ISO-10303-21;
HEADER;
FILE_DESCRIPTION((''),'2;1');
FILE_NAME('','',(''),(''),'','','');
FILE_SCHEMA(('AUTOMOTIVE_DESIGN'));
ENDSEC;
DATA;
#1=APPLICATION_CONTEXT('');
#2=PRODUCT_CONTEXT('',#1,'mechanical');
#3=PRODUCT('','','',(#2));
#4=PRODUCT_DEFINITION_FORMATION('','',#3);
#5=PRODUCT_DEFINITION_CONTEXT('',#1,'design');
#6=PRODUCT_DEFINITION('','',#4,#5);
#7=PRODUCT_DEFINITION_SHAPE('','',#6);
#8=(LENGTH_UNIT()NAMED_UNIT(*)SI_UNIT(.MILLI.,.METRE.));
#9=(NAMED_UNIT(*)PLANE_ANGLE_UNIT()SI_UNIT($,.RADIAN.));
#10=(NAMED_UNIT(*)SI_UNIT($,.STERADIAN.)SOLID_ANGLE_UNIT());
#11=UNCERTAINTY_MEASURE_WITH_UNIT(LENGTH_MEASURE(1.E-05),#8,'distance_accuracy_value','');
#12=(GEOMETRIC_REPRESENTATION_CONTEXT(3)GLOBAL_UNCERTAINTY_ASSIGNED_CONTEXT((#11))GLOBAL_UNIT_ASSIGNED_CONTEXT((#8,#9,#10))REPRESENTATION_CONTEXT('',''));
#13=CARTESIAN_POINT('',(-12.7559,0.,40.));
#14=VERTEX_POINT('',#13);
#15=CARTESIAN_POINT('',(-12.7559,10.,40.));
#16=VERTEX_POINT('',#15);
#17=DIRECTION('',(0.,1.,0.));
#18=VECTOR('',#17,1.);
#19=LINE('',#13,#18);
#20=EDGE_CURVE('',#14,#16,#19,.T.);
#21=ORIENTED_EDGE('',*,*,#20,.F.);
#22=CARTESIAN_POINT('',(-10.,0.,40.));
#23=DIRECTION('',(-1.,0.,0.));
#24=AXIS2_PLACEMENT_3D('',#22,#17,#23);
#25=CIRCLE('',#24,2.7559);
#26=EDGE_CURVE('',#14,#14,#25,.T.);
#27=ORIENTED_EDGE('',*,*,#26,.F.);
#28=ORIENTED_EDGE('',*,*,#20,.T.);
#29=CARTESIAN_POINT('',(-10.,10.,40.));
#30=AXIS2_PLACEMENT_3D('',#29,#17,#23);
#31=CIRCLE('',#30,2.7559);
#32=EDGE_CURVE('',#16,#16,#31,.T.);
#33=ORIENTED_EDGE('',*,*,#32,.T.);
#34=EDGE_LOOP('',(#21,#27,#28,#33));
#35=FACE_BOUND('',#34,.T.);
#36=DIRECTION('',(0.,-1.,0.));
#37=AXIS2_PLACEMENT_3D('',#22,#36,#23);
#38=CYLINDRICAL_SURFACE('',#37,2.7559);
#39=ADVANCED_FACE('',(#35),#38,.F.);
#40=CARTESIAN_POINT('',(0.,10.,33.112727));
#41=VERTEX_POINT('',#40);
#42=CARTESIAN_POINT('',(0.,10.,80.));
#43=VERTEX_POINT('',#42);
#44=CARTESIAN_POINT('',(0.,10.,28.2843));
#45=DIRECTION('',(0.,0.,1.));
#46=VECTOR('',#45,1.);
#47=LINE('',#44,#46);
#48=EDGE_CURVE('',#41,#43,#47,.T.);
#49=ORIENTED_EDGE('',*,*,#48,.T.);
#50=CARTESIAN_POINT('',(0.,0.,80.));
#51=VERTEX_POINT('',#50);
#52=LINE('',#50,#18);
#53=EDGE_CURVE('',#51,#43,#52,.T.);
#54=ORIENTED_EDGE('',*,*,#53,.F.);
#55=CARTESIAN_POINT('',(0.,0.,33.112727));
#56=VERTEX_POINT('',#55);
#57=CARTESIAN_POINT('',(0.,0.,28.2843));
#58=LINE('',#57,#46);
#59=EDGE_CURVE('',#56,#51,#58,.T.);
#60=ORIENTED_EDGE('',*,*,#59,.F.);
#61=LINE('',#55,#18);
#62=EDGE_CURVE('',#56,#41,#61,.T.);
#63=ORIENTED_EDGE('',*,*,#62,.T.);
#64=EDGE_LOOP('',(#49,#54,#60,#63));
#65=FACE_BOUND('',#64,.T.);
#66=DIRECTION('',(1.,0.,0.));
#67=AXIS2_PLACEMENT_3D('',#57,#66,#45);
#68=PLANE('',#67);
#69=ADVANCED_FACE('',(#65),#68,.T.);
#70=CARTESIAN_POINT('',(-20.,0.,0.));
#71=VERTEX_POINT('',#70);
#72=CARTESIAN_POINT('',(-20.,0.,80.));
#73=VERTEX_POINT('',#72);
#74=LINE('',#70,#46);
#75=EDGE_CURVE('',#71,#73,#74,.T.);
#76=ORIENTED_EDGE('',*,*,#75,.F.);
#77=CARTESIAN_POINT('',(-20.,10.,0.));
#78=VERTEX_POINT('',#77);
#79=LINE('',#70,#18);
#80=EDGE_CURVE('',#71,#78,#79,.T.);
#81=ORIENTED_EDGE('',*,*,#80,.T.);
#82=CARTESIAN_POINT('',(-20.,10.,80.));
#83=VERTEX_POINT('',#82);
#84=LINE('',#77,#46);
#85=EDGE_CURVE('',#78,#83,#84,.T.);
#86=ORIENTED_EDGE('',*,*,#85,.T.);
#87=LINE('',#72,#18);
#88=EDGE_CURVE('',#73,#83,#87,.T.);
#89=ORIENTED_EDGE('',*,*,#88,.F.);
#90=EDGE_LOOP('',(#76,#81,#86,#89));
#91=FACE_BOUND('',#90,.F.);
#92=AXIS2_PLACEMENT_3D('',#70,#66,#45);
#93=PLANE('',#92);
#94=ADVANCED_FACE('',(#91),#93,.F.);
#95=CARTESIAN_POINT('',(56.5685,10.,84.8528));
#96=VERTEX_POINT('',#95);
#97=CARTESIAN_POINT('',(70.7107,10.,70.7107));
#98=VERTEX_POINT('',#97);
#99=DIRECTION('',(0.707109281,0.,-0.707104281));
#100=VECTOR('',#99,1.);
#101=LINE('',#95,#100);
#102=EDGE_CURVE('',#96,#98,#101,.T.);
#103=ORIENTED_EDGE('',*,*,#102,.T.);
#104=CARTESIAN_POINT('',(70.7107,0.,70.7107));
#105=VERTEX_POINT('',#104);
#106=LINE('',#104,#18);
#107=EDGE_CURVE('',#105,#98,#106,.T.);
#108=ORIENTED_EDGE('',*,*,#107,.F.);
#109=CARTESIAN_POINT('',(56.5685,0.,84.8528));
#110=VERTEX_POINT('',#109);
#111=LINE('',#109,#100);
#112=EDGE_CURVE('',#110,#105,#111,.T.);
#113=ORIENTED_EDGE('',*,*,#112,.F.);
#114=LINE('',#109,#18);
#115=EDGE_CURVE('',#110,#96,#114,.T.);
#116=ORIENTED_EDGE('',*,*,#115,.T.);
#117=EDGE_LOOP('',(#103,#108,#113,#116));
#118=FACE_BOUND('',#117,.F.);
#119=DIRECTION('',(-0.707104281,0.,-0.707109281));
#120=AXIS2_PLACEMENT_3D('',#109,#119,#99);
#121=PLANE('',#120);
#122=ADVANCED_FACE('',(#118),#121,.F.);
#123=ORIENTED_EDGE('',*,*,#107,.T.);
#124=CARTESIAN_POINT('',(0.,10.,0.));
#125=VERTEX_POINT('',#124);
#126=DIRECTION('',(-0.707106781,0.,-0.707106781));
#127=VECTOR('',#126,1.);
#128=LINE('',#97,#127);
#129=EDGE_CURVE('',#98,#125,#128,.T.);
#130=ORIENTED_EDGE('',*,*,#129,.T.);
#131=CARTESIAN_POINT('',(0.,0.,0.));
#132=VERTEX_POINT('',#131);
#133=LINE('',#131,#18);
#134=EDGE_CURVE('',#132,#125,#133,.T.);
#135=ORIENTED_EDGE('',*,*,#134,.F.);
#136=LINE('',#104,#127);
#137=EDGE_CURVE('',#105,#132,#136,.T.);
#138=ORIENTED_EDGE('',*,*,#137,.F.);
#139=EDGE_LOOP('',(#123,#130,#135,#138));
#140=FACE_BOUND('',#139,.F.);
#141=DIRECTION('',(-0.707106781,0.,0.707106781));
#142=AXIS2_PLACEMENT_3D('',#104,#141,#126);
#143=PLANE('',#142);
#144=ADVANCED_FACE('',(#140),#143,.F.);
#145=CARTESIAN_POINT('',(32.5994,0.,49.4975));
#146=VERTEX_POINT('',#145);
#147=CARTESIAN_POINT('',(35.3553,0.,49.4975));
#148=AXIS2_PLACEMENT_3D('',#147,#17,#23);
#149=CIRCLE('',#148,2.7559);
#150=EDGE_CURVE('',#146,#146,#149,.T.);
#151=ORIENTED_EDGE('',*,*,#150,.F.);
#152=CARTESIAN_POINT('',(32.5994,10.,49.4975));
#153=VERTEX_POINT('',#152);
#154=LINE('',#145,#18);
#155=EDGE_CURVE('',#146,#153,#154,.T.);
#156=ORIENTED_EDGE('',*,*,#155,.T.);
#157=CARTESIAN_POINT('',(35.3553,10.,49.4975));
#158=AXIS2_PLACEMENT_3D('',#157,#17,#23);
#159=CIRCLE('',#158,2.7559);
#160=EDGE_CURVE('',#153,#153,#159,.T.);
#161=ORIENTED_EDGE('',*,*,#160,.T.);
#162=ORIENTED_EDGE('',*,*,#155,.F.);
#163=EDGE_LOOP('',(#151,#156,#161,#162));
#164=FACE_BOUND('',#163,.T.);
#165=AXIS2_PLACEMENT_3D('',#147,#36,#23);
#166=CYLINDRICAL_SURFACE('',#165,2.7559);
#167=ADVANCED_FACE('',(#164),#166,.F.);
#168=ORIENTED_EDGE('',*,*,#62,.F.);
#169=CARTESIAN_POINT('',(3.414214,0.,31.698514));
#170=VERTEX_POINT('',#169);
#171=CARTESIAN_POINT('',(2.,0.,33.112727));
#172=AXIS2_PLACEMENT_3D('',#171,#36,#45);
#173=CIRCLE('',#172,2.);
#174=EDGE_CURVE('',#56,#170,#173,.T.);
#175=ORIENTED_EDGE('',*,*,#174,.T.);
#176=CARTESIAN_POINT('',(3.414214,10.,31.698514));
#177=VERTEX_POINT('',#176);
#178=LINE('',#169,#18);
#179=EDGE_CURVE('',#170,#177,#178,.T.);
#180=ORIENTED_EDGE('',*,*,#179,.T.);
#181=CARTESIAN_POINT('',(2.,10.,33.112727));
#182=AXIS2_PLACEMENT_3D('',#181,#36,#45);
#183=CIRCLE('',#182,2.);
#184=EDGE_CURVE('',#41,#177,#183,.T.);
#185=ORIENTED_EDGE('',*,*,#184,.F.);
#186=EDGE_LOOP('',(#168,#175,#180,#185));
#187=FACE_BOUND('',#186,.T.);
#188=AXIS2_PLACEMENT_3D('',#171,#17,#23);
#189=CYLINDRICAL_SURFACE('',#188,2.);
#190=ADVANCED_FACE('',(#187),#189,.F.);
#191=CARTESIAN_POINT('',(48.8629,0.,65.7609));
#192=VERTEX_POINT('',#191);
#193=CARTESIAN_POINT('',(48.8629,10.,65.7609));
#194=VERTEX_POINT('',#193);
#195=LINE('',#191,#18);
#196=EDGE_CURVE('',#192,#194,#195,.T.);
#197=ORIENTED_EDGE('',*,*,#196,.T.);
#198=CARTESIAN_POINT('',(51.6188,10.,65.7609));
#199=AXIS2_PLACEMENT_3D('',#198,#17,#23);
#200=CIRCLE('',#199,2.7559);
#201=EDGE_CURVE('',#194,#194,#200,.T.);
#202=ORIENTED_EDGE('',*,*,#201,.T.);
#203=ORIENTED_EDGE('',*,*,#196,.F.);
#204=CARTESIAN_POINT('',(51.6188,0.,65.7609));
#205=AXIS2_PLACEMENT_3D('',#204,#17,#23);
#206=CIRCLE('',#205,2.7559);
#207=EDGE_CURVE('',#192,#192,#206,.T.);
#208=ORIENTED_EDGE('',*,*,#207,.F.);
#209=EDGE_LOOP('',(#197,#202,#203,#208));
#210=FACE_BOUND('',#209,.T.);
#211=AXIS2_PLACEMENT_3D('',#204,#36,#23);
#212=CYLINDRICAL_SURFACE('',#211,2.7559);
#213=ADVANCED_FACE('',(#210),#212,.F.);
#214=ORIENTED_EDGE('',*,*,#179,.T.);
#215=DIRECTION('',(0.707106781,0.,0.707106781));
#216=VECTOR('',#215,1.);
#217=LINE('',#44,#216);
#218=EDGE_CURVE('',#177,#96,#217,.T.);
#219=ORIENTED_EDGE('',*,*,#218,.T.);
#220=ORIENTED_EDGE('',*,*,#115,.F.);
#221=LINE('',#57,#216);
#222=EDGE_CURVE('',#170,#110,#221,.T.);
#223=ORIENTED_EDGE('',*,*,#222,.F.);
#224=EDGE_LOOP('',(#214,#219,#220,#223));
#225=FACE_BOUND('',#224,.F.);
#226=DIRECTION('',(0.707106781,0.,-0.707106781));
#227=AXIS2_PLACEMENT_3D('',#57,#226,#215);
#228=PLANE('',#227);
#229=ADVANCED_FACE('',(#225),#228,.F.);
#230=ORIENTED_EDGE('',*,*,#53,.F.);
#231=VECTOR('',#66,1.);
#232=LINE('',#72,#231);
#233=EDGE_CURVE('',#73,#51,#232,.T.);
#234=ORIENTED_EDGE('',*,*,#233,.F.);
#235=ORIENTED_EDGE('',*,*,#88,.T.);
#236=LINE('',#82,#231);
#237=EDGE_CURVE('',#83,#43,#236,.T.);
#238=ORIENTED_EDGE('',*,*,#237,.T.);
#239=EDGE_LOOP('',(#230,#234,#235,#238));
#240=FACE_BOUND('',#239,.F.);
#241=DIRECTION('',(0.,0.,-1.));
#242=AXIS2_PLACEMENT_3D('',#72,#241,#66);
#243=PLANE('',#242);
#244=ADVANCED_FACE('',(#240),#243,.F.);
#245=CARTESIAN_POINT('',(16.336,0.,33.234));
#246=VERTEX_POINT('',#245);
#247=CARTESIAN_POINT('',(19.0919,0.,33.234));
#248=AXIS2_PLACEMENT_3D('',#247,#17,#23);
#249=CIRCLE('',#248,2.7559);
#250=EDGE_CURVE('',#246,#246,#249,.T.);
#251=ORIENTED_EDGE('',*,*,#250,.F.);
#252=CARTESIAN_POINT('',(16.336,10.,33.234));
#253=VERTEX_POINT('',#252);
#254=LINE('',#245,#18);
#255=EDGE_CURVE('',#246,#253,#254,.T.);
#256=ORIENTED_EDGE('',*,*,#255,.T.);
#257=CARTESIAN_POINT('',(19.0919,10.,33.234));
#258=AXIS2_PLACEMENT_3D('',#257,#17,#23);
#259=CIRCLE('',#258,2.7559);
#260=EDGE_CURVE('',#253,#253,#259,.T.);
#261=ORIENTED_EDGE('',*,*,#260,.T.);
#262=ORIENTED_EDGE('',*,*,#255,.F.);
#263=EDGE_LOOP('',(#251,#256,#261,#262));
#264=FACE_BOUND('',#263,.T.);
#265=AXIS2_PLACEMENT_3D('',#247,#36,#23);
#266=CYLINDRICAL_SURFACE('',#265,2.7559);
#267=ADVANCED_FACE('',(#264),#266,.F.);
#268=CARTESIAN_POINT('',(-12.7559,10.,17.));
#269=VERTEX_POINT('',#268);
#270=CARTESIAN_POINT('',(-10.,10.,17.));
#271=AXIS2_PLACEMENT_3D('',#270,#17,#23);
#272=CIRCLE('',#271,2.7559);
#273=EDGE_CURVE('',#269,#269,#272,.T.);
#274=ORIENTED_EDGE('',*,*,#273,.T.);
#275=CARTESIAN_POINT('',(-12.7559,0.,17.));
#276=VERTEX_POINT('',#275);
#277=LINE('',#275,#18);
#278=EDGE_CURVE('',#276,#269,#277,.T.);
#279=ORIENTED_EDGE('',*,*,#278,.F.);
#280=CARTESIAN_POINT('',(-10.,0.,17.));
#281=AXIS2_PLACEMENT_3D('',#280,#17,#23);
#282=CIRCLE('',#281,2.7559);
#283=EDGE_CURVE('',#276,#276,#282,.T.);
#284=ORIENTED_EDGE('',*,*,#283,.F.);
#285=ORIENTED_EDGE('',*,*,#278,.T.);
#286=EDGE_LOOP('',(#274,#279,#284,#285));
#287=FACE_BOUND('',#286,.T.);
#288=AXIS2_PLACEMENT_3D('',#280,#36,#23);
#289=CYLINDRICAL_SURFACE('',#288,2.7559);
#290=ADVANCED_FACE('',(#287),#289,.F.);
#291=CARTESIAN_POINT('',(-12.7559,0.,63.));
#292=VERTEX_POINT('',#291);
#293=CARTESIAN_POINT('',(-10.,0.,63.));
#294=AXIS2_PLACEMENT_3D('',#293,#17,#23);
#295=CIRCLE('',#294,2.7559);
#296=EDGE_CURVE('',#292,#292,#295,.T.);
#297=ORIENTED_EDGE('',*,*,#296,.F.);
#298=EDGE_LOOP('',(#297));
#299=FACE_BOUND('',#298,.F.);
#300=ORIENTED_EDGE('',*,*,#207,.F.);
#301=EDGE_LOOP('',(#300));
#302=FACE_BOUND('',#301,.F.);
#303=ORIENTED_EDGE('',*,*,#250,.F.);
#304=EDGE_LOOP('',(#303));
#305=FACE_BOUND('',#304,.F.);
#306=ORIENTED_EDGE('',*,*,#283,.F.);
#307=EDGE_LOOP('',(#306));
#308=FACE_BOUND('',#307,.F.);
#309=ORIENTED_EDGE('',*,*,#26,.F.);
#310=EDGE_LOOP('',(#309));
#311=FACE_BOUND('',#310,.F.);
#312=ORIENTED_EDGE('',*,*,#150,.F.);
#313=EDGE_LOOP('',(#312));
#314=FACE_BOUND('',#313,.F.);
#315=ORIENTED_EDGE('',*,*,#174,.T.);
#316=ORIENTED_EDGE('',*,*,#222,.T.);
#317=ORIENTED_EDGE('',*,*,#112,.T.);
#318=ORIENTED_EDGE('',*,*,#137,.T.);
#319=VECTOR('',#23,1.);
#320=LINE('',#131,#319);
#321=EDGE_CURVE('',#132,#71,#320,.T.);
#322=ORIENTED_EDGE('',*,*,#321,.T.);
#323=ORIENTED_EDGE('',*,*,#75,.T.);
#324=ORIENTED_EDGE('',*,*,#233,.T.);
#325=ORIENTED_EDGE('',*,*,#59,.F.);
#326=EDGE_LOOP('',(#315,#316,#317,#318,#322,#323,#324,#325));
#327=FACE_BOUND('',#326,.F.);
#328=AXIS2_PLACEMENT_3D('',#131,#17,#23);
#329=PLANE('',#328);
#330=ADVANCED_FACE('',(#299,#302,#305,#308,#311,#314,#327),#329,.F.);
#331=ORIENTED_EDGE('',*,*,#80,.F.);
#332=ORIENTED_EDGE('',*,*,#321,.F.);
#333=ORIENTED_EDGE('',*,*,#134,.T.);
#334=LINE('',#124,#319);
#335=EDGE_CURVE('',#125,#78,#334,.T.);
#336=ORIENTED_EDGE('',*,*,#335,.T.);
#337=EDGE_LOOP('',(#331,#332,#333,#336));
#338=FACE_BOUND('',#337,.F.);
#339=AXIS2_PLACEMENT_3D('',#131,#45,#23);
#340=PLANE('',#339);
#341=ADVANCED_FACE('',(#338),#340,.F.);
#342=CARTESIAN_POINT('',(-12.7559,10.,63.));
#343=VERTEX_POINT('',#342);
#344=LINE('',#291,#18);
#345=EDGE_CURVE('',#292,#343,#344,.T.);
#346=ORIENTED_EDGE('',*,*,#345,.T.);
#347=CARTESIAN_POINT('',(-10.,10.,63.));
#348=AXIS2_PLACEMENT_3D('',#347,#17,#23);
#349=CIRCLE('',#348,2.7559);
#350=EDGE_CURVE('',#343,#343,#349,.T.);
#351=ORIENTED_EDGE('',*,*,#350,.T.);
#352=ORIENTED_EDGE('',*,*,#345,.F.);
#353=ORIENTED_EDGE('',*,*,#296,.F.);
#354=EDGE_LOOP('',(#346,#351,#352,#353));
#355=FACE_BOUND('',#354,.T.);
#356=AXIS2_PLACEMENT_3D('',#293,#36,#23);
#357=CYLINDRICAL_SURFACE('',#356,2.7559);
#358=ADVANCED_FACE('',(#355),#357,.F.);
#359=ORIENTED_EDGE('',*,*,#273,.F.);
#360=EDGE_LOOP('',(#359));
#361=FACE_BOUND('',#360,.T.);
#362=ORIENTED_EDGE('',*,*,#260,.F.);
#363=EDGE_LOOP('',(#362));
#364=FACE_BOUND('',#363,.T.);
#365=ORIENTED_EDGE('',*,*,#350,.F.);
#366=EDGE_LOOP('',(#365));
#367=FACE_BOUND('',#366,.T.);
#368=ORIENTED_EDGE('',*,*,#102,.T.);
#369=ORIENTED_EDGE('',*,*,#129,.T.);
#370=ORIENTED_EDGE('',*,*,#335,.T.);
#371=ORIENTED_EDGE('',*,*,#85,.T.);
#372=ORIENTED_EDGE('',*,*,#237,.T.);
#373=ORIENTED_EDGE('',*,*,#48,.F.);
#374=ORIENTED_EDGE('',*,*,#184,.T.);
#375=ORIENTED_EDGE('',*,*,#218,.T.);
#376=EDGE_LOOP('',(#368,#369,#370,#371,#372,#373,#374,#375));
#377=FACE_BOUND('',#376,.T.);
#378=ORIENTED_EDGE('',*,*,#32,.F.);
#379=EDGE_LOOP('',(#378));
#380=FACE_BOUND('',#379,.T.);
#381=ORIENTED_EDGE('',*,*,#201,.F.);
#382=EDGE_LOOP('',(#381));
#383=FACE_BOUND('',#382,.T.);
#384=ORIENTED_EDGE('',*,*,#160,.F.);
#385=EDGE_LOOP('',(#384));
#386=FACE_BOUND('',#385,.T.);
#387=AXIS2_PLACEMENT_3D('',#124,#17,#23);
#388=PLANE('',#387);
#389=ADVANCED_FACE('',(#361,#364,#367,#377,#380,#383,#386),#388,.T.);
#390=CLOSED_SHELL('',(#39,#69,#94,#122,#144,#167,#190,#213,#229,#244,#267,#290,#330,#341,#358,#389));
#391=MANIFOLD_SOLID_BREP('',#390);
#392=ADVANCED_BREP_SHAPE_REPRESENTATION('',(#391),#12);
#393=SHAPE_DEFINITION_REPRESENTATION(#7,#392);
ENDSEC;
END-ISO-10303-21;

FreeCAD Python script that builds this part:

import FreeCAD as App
import Part
import Sketcher

V = App.Vector
Q = App.Units.Quantity


def edges_at(feature, points):
    """Names of the edges that pass closest to the given points."""
    edges = feature.Shape.Edges
    near = lambda p: min(range(len(edges)), key=lambda i: edges[i].distToShape(Part.Vertex(*p))[0])
    return sorted({f"Edge{near(p) + 1}" for p in points})


def add_polygon(sketch, points):
    """Adds a closed chain of lines whose ends are joined by coincident constraints."""
    first, n = sketch.GeometryCount, len(points)
    for a, b in zip(points, points[1:] + points[:1]):
        sketch.addGeometry(Part.LineSegment(App.Vector(*a, 0), App.Vector(*b, 0)), False)
    for i in range(n):
        sketch.addConstraint(Sketcher.Constraint("Coincident", first + i, 2, first + (i + 1) % n, 1))

doc = App.newDocument("Part")
body = doc.addObject("PartDesign::Body", "Body")

# Sketch on XZ plane
sketch1 = body.newObject("Sketcher::SketchObject", "Sketch")
sketch1.AttachmentSupport = (doc.getObject("XZ_Plane"), [""])
sketch1.MapMode = "FlatFace"
add_polygon(sketch1, [(0, 80), (0, 28.2843), (56.5685, 84.8528), (70.7107, 70.7107), (0, 0), (-20, 0), (-20, 80)])  # lines 0-6
sketch1.addGeometry(Part.Circle(V(-10, 17, 0), V(0, 0, 1), 2.7559), False)  # 7
sketch1.addGeometry(Part.Circle(V(19.0919, 33.234, 0), V(0, 0, 1), 2.7559), False)  # 8
sketch1.addGeometry(Part.Circle(V(-10, 40, 0), V(0, 0, 1), 2.7559), False)  # 9
sketch1.addGeometry(Part.Circle(V(35.3553, 49.4975, 0), V(0, 0, 1), 2.7559), False)  # 10
sketch1.addGeometry(Part.Circle(V(51.6188, 65.7609, 0), V(0, 0, 1), 2.7559), False)  # 11
sketch1.addGeometry(Part.Circle(V(-10, 63, 0), V(0, 0, 1), 2.7559), False)  # 12
sketch1.addConstraint(Sketcher.Constraint("Vertical", 0))
sketch1.addConstraint(Sketcher.Constraint("Horizontal", 4))
sketch1.addConstraint(Sketcher.Constraint("Vertical", 5))
sketch1.addConstraint(Sketcher.Constraint("Horizontal", 6))
sketch1.addConstraint(Sketcher.Constraint("Coincident", 3, 2, -1, 1))
sketch1.addConstraint(Sketcher.Constraint("Equal", 7, 8))
sketch1.addConstraint(Sketcher.Constraint("Equal", 8, 9))
sketch1.addConstraint(Sketcher.Constraint("Equal", 9, 10))
sketch1.addConstraint(Sketcher.Constraint("Equal", 10, 11))
sketch1.addConstraint(Sketcher.Constraint("Equal", 11, 12))
sketch1.addConstraint(Sketcher.Constraint("PointOnObject", 0, 2, -2))
sketch1.addConstraint(Sketcher.Constraint("Perpendicular", 1, 2))
sketch1.addConstraint(Sketcher.Constraint("Perpendicular", 2, 3))
sketch1.addConstraint(Sketcher.Constraint("Vertical", 7, 3, 9, 3))
sketch1.addConstraint(Sketcher.Constraint("Vertical", 9, 3, 12, 3))
sketch1.addConstraint(Sketcher.Constraint("Diameter", 7, Q("0.217 in")))
sketch1.addConstraint(Sketcher.Constraint("Angle", 1, Q("45 deg")))
sketch1.addConstraint(Sketcher.Constraint("Distance", 3, Q("3.937 in")))
sketch1.addConstraint(Sketcher.Constraint("DistanceX", 4, 2, 4, 1, Q("0.7874 in")))
sketch1.addConstraint(Sketcher.Constraint("DistanceY", 5, 1, 5, 2, Q("3.1496 in")))
sketch1.addConstraint(Sketcher.Constraint("Distance", 1, Q("3.1496 in")))
sketch1.addConstraint(Sketcher.Constraint("DistanceX", 7, 3, -1, 1, Q("0.3937 in")))
sketch1.addConstraint(Sketcher.Constraint("DistanceY", -1, 1, 7, 3, Q("0.6693 in")))
sketch1.addConstraint(Sketcher.Constraint("DistanceY", 7, 3, 9, 3, Q("0.9055 in")))
sketch1.addConstraint(Sketcher.Constraint("DistanceY", 9, 3, 12, 3, Q("0.9055 in")))
sketch1.addConstraint(Sketcher.Constraint("DistanceY", -1, 1, 11, 3, Q("2.589 in")))
sketch1.addConstraint(Sketcher.Constraint("DistanceX", 8, 3, 10, 3, Q("0.6403 in")))
sketch1.addConstraint(Sketcher.Constraint("DistanceY", 8, 3, 10, 3, Q("0.6403 in")))
sketch1.addConstraint(Sketcher.Constraint("DistanceX", 10, 3, 11, 3, Q("0.6403 in")))
sketch1.addConstraint(Sketcher.Constraint("DistanceY", 10, 3, 11, 3, Q("0.6403 in")))
sketch1.addConstraint(Sketcher.Constraint("DistanceX", -1, 1, 8, 3, Q("19.092 mm")))
pad1 = body.newObject("PartDesign::Pad", "Pad")
pad1.Profile = sketch1
pad1.Length = Q("0.3937008 in")
pad1.Reversed = True
doc.recompute()

fillet = body.newObject("PartDesign::Fillet", "Fillet")
fillet.Base = (pad1, edges_at(pad1, [(0, 5, 28.284)]))
fillet.Radius = 2

doc.recompute()
